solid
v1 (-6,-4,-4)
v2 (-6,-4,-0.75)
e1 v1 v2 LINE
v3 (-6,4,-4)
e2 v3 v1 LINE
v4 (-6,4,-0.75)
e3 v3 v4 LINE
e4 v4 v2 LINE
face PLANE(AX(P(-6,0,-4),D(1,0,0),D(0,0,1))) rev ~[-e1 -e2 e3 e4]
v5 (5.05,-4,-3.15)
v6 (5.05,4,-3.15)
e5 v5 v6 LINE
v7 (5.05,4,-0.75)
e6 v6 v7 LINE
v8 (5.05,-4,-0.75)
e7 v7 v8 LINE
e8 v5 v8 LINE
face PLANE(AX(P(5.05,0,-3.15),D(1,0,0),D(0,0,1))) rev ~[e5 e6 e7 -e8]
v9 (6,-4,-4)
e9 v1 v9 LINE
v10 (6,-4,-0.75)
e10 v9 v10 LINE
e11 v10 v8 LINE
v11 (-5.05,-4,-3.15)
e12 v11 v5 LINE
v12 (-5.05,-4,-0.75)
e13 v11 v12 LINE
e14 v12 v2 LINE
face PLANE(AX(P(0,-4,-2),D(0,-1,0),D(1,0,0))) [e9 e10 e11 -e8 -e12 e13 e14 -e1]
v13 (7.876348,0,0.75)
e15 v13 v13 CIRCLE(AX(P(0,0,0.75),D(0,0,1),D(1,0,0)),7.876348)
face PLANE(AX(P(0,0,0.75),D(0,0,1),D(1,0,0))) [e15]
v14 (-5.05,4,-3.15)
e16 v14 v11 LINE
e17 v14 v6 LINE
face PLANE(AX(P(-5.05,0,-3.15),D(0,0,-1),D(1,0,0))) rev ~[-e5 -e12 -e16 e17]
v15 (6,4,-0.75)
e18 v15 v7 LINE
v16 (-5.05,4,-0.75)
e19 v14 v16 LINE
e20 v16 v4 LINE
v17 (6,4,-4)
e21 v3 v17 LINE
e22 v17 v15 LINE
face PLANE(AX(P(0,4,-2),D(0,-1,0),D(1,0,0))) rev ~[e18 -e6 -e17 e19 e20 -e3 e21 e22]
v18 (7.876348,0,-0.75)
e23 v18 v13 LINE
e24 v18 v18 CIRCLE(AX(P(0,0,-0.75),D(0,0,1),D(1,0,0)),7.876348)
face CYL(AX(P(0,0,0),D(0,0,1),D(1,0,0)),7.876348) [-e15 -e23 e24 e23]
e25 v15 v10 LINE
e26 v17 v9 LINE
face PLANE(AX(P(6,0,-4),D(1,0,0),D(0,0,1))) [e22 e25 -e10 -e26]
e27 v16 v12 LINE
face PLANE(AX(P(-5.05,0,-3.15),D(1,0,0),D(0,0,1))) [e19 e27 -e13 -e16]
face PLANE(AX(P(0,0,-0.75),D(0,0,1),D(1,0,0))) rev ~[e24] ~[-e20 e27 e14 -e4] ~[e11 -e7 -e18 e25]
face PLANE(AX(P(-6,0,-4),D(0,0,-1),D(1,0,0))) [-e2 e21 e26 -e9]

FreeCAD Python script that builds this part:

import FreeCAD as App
import Part
import Sketcher
from FreeCAD import Vector


def add_polygon(sketch, points):
    """Adds a closed chain of lines whose ends are joined by coincident constraints."""
    first, n = sketch.GeometryCount, len(points)
    for a, b in zip(points, points[1:] + points[:1]):
        sketch.addGeometry(Part.LineSegment(App.Vector(*a, 0), App.Vector(*b, 0)), False)
    for i in range(n):
        sketch.addConstraint(Sketcher.Constraint("Coincident", first + i, 2, first + (i + 1) % n, 1))

doc = App.newDocument("Part")
body = doc.addObject("PartDesign::Body", "Body")

# Sketch on XZ plane
sketch1 = body.newObject("Sketcher::SketchObject", "Sketch")
sketch1.AttachmentSupport = (doc.getObject("XZ_Plane"), [""])
sketch1.MapMode = "FlatFace"
add_polygon(sketch1, [(-6, 0), (-6, -4), (6, -4), (6, 0)])  # lines 0-3
add_polygon(sketch1, [(5.05, -3.15), (-5.05, -3.15), (-5.05, -0.7), (5.05, -0.7)])  # lines 4-7
sketch1.addConstraint([
    Sketcher.Constraint("Vertical", 0),
    Sketcher.Constraint("Horizontal", 1),
    Sketcher.Constraint("Vertical", 2),
    Sketcher.Constraint("Horizontal", 3),
    Sketcher.Constraint("Horizontal", 4),
    Sketcher.Constraint("Vertical", 5),
    Sketcher.Constraint("Horizontal", 6),
    Sketcher.Constraint("Vertical", 7),
    Sketcher.Constraint("Symmetric", 2, 2, 3, 2, -1, 1),
    Sketcher.Constraint("DistanceX", 1, 1, 1, 2, 12.0),
    Sketcher.Constraint("DistanceY", 0, 2, 0, 1, 4.0),
    Sketcher.Constraint("DistanceX", 4, 2, 4, 1, 10.1),
    Sketcher.Constraint("DistanceY", 5, 1, 5, 2, 2.45),
    Sketcher.Constraint("DistanceY", 5, 2, -1, 1, 0.7),
    Sketcher.Constraint("DistanceX", 4, 2, -1, 1, 5.05),
])
pad1 = body.newObject("PartDesign::Pad", "Pad")
pad1.Profile = sketch1
pad1.Length = 8
pad1.Midplane = True

# Sketch on XY plane
sketch2 = body.newObject("Sketcher::SketchObject", "Sketch001")
sketch2.AttachmentSupport = (doc.getObject("XY_Plane"), [""])
sketch2.MapMode = "FlatFace"
sketch2.addGeometry(Part.Circle(Vector(0, 0, 0), Vector(0, 0, 1), 7.876348), False)
sketch2.addConstraint([
    Sketcher.Constraint("Coincident", 0, 3, -1, 1),
    Sketcher.Constraint("Diameter", 0, 15.752696),
])
pad2 = body.newObject("PartDesign::Pad", "Pad001")
pad2.Profile = sketch2
pad2.Length = 1.5
pad2.Midplane = True

doc.recompute()
